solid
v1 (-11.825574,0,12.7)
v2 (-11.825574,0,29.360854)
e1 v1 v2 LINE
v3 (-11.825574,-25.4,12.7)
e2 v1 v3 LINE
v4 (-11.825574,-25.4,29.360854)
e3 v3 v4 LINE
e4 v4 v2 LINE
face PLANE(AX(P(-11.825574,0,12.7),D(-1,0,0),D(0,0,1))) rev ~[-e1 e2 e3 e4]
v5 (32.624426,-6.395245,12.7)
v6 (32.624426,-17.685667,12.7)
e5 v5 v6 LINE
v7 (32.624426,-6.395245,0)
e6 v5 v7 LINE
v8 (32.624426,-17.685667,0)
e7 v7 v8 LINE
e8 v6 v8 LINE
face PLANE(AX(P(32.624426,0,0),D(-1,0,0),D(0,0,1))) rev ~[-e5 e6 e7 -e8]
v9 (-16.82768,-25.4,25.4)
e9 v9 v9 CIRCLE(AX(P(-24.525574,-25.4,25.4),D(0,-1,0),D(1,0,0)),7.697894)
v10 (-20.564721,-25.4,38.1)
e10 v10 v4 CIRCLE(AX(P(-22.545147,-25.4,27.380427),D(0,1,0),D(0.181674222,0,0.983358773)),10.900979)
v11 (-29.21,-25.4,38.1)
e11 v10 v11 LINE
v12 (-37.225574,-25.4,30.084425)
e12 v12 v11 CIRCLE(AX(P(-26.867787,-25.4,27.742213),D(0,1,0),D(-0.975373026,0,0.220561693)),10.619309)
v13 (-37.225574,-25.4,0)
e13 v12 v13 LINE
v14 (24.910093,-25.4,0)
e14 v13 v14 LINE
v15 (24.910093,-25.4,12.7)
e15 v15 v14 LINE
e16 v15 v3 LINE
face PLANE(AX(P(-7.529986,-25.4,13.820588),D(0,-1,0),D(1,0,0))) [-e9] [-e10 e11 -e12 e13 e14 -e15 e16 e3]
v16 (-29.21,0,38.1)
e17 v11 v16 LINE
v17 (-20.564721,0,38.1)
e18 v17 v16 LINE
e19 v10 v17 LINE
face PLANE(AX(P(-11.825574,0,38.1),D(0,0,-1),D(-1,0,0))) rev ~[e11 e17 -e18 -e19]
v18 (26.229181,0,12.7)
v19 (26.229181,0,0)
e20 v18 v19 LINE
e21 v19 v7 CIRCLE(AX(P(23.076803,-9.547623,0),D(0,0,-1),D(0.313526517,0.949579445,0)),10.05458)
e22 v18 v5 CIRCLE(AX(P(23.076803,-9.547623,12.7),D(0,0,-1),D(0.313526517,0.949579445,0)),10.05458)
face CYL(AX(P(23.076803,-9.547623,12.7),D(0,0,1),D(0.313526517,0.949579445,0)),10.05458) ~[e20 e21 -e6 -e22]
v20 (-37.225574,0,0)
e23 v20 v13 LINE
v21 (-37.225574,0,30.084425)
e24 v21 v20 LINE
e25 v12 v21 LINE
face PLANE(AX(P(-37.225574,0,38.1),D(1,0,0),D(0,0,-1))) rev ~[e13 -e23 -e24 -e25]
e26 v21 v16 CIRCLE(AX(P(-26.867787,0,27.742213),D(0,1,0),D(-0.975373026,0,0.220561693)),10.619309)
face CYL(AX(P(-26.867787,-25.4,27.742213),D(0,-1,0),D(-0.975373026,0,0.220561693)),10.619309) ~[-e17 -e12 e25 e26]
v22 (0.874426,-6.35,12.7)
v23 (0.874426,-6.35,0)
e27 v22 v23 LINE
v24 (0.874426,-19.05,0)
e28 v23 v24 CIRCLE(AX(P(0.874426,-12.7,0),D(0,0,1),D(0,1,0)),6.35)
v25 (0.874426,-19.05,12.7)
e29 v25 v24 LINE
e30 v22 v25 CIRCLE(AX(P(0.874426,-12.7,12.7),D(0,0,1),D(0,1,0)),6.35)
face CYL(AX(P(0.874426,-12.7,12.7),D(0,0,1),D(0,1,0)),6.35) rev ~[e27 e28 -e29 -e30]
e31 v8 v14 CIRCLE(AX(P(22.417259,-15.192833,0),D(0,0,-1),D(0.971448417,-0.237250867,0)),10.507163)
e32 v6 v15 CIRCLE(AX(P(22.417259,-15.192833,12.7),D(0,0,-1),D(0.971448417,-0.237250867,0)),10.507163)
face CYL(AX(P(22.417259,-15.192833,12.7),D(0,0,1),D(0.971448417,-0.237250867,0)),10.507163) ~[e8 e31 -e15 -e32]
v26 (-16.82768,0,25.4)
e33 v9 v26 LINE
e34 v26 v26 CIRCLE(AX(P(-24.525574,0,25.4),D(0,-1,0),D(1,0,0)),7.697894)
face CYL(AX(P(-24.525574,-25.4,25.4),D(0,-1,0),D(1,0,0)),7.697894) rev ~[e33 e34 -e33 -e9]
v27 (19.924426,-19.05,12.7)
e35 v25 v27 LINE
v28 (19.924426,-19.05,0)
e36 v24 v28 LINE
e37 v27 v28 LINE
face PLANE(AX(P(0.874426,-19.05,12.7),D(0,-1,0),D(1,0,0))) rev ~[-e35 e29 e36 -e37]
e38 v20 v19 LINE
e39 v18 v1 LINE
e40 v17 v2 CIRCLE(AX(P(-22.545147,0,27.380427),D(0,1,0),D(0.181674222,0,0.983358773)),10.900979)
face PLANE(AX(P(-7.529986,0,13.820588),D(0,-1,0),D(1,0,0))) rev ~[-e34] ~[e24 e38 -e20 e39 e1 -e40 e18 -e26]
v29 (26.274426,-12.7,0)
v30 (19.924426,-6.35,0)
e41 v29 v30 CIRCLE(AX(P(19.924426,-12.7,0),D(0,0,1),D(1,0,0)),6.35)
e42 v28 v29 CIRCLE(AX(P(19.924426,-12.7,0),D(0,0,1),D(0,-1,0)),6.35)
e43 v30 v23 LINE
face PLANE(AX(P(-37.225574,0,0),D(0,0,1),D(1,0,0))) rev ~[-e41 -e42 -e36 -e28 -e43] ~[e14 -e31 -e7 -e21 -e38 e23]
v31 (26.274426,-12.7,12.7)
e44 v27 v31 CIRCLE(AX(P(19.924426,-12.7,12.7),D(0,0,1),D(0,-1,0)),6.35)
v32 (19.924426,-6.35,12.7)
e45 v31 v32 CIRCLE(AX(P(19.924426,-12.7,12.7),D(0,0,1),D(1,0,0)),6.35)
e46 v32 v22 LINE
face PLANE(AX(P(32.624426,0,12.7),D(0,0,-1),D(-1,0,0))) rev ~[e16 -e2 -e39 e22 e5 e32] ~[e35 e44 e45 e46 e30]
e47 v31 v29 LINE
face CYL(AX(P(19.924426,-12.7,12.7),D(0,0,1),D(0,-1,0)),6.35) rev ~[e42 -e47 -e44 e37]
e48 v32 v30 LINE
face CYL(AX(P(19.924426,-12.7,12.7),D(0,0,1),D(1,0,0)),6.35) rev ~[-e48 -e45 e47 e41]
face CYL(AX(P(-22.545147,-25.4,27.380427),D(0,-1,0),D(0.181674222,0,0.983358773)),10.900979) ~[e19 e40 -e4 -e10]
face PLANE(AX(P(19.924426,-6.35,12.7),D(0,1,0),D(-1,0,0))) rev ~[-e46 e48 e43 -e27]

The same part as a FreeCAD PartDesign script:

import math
import FreeCAD as App
import Part
import Sketcher
from FreeCAD import Vector
Q = App.Units.Quantity


def add_polygon(sketch, points):
    """Adds a closed chain of lines whose ends are joined by coincident constraints."""
    first, n = sketch.GeometryCount, len(points)
    for a, b in zip(points, points[1:] + points[:1]):
        sketch.addGeometry(Part.LineSegment(App.Vector(*a, 0), App.Vector(*b, 0)), False)
    for i in range(n):
        sketch.addConstraint(Sketcher.Constraint("Coincident", first + i, 2, first + (i + 1) % n, 1))

doc = App.newDocument("Part")
body = doc.addObject("PartDesign::Body", "Body")

# Sketch on XZ plane
sketch1 = body.newObject("Sketcher::SketchObject", "Sketch")
sketch1.AttachmentSupport = (doc.getObject("XZ_Plane"), [""])
sketch1.MapMode = "FlatFace"
add_polygon(sketch1, [(-12, 38), (-37, 38), (-37, 0), (33, 0), (33, 13), (-12, 13)])  # lines 0-5
sketch1.addConstraint([
    Sketcher.Constraint("Horizontal", 0),
    Sketcher.Constraint("Vertical", 1),
    Sketcher.Constraint("Horizontal", 2),
    Sketcher.Constraint("Vertical", 3),
    Sketcher.Constraint("Horizontal", 4),
    Sketcher.Constraint("Vertical", 5),
    Sketcher.Constraint("PointOnObject", 1, 2, -1),
    Sketcher.Constraint("Equal", 0, 5),
    Sketcher.Constraint("DistanceX", 0, 2, 0, 1, Q("1 in")),
    Sketcher.Constraint("DistanceY", 1, 2, 1, 1, Q("1.5 in")),
    Sketcher.Constraint("DistanceX", 2, 1, 2, 2, Q("2.75 in")),
    Sketcher.Constraint("DistanceX", 0, 2, -1, 1, Q("37.225574 mm")),
])
pad1 = body.newObject("PartDesign::Pad", "Pad")
pad1.Profile = sketch1
pad1.Length = Q("1 in")

# Sketch on XZ plane
sketch2 = body.newObject("Sketcher::SketchObject", "Sketch001")
sketch2.AttachmentSupport = (doc.getObject("XZ_Plane"), [""])
sketch2.MapMode = "FlatFace"
sketch2.AttachmentOffset = App.Placement(Vector(0, 0, 1 * 25.4), App.Rotation())
sketch2.addGeometry(Part.Circle(Vector(-25, 25, 0), Vector(0, 0, 1), 8), False)
sketch2.addConstraint([
    Sketcher.Constraint("DistanceY", -1, 1, 0, 3, Q("1 in")),
    Sketcher.Constraint("Diameter", 0, Q("15.395789 mm")),
    Sketcher.Constraint("DistanceX", 0, 3, -1, 1, Q("24.525574 mm")),
])
pocket1 = body.newObject("PartDesign::Pocket", "Pocket")
pocket1.Profile = sketch2
pocket1.Length = Q("1 in")

# Sketch on XZ plane
sketch3 = body.newObject("Sketcher::SketchObject", "Sketch002")
sketch3.AttachmentSupport = (doc.getObject("XZ_Plane"), [""])
sketch3.MapMode = "FlatFace"
sketch3.AttachmentOffset = App.Placement(Vector(0, 0, 1 * 25.4), App.Rotation())
sketch3.addGeometry([
    Part.ArcOfCircle(Part.Circle(Vector(-27, 28, 0), Vector(0, 0, 1), 11), math.radians(103), math.radians(167)),  # 0
    Part.LineSegment(Vector(-29, 38, 0), Vector(-37, 38, 0)),  # 1
    Part.LineSegment(Vector(-37, 38, 0), Vector(-37, 30, 0)),  # 2
    Part.LineSegment(Vector(-12, 38, 0), Vector(-21, 38, 0)),  # 3
    Part.ArcOfCircle(Part.Circle(Vector(-23, 27, 0), Vector(0, 0, 1), 11), math.radians(10), math.radians(80)),  # 4
    Part.LineSegment(Vector(-12, 29, 0), Vector(-12, 38, 0)),  # 5
], False)
sketch3.addConstraint([
    Sketcher.Constraint("Coincident", 0, 1, 1, 1),
    Sketcher.Constraint("Coincident", 1, 2, 2, 1),
    Sketcher.Constraint("Coincident", 2, 2, 0, 2),
    Sketcher.Constraint("Coincident", 3, 2, 4, 2),
    Sketcher.Constraint("Coincident", 4, 1, 5, 1),
    Sketcher.Constraint("Coincident", 5, 2, 3, 1),
    Sketcher.Constraint("Horizontal", 1),
    Sketcher.Constraint("Vertical", 2),
    Sketcher.Constraint("Horizontal", 3),
    Sketcher.Constraint("Vertical", 5),
    Sketcher.Constraint("Horizontal", 1, 2, 3, 2),
    Sketcher.Constraint("Equal", 1, 2),
    Sketcher.Constraint("Equal", 3, 5),
    Sketcher.Constraint("DistanceX", 2, 2, 4, 1, Q("1 in")),
    Sketcher.Constraint("DistanceY", -1, 1, 0, 1, Q("1.5 in")),
    Sketcher.Constraint("DistanceX", 0, 1, -1, 1, Q("1.15 in")),
    Sketcher.Constraint("Radius", 0, Q("10.619309 mm")),
    Sketcher.Constraint("Radius", 4, Q("10.900979 mm")),
    Sketcher.Constraint("DistanceY", 4, 3, 2, 2, Q("2.703999 mm")),
    Sketcher.Constraint("DistanceX", 1, 2, 1, 1, Q("8.015575 mm")),
])
pocket2 = body.newObject("PartDesign::Pocket", "Pocket001")
pocket2.Profile = sketch3
pocket2.Length = Q("1 in")

# Sketch on XY plane
sketch4 = body.newObject("Sketcher::SketchObject", "Sketch003")
sketch4.AttachmentSupport = (doc.getObject("XY_Plane"), [""])
sketch4.MapMode = "FlatFace"
sketch4.AttachmentOffset = App.Placement(Vector(0, 0, 0.5 * 25.4), App.Rotation())
sketch4.addGeometry([
    Part.ArcOfCircle(Part.Circle(Vector(20, -13, 0), Vector(0, 0, 1), 6), math.radians(0), math.radians(90)),  # 0
    Part.LineSegment(Vector(20, -6, 0), Vector(1, -6, 0)),  # 1
    Part.ArcOfCircle(Part.Circle(Vector(1, -13, 0), Vector(0, 0, 1), 6), math.radians(90), math.radians(270)),  # 2
    Part.LineSegment(Vector(1, -19, 0), Vector(20, -19, 0)),  # 3
    Part.ArcOfCircle(Part.Circle(Vector(20, -13, 0), Vector(0, 0, 1), 6), math.radians(-90), math.radians(0)),  # 4
], False)
sketch4.addConstraint([
    Sketcher.Constraint("Tangent", 0, 2, 1, 1),
    Sketcher.Constraint("Tangent", 1, 2, 2, 1),
    Sketcher.Constraint("Tangent", 2, 2, 3, 1),
    Sketcher.Constraint("Tangent", 3, 2, 4, 1),
    Sketcher.Constraint("Tangent", 4, 2, 0, 1),
    Sketcher.Constraint("Horizontal", 1),
    Sketcher.Constraint("Horizontal", 3),
    Sketcher.Constraint("Equal", 0, 2),
    Sketcher.Constraint("Horizontal", 2, 3, 4, 2),
    Sketcher.Constraint("Radius", 0, Q("0.25 in")),
    Sketcher.Constraint("DistanceX", 2, 3, 4, 2, Q("1 in")),
    Sketcher.Constraint("DistanceY", 0, 3, -1, 1, Q("0.5 in")),
    Sketcher.Constraint("DistanceX", -1, 1, 0, 3, Q("19.924426 mm")),
])
pocket3 = body.newObject("PartDesign::Pocket", "Pocket002")
pocket3.Profile = sketch4
pocket3.Length = Q("0.5 in")

# Sketch on XY plane
sketch5 = body.newObject("Sketcher::SketchObject", "Sketch004")
sketch5.AttachmentSupport = (doc.getObject("XY_Plane"), [""])
sketch5.MapMode = "FlatFace"
sketch5.AttachmentOffset = App.Placement(Vector(0, 0, 0.5 * 25.4), App.Rotation())
sketch5.addGeometry([
    Part.ArcOfCircle(Part.Circle(Vector(23, -10, 0), Vector(0, 0, 1), 10), math.radians(18), math.radians(72)),  # 0
    Part.LineSegment(Vector(33, -6, 0), Vector(33, 0, 0)),  # 1
    Part.LineSegment(Vector(33, 0, 0), Vector(26, 0, 0)),  # 2
    Part.LineSegment(Vector(33, -25, 0), Vector(33, -18, 0)),  # 3
    Part.ArcOfCircle(Part.Circle(Vector(22, -15, 0), Vector(0, 0, 1), 11), math.radians(-76), math.radians(-14)),  # 4
    Part.LineSegment(Vector(25, -25, 0), Vector(33, -25, 0)),  # 5
], False)
sketch5.addConstraint([
    Sketcher.Constraint("Coincident", 0, 1, 1, 1),
    Sketcher.Constraint("Coincident", 1, 2, 2, 1),
    Sketcher.Constraint("Coincident", 2, 2, 0, 2),
    Sketcher.Constraint("Coincident", 3, 2, 4, 2),
    Sketcher.Constraint("Coincident", 4, 1, 5, 1),
    Sketcher.Constraint("Coincident", 5, 2, 3, 1),
    Sketcher.Constraint("Vertical", 1),
    Sketcher.Constraint("Horizontal", 2),
    Sketcher.Constraint("Vertical", 3),
    Sketcher.Constraint("Horizontal", 5),
    Sketcher.Constraint("PointOnObject", 1, 2, -1),
    Sketcher.Constraint("Vertical", 1, 2, 3, 2),
    Sketcher.Constraint("Equal", 2, 1),
    Sketcher.Constraint("Equal", 5, 3),
    Sketcher.Constraint("DistanceY", 4, 1, -1, 1, Q("1 in")),
    Sketcher.Constraint("Radius", 0, Q("10.05458 mm")),
    Sketcher.Constraint("Radius", 4, Q("10.507163 mm")),
    Sketcher.Constraint("DistanceX", 2, 2, 2, 1, Q("6.395245 mm")),
    Sketcher.Constraint("DistanceX", 5, 1, 5, 2, Q("7.714333 mm")),
    Sketcher.Constraint("DistanceX", -1, 1, 4, 3, Q("22.417259 mm")),
])
pocket4 = body.newObject("PartDesign::Pocket", "Pocket003")
pocket4.Profile = sketch5
pocket4.Length = Q("0.5 in")

doc.recompute()
